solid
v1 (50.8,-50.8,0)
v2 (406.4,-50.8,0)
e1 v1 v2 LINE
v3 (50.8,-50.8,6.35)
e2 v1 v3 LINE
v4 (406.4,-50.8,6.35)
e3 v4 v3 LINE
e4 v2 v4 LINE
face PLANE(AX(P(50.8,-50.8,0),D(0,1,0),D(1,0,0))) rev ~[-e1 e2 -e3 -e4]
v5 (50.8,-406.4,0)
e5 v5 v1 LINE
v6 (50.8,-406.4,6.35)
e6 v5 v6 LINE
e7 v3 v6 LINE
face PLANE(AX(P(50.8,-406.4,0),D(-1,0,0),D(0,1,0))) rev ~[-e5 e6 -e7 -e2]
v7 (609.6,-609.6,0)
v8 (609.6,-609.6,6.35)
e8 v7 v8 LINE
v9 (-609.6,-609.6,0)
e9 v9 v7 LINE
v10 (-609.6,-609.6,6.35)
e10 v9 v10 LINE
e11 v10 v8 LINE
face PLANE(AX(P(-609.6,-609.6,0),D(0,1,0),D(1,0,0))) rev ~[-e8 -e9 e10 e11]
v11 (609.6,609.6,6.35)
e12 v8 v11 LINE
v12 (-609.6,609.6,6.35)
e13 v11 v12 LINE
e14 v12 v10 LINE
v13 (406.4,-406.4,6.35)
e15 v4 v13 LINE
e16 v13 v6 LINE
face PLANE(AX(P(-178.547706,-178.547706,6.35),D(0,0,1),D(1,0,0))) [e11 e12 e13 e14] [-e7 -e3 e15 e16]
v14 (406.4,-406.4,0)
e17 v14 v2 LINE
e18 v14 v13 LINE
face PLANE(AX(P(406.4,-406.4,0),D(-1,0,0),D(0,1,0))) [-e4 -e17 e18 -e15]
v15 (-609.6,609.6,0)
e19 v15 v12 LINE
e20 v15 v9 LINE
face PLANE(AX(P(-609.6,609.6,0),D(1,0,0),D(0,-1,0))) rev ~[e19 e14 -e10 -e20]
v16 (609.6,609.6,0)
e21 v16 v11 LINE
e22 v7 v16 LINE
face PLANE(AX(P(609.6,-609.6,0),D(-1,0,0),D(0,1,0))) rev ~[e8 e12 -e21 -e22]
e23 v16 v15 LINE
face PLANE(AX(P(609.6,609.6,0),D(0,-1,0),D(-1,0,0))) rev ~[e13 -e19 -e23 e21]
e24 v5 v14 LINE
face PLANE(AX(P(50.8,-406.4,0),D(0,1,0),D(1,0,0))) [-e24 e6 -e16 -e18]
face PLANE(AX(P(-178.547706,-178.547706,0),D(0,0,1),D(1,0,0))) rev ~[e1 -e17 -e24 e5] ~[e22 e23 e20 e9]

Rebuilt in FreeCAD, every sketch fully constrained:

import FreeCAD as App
import Part
import Sketcher
Q = App.Units.Quantity

doc = App.newDocument("Part")
body = doc.addObject("PartDesign::Body", "Body")

# Sketch on XY plane
sketch1 = body.newObject("Sketcher::SketchObject", "Sketch")
sketch1.AttachmentSupport = (doc.getObject("XY_Plane"), [""])
sketch1.MapMode = "FlatFace"
sketch1.addGeometry([
    Part.LineSegment(App.Vector(-610, 610, 0), App.Vector(-610, -610, 0)),
    Part.LineSegment(App.Vector(-610, -610, 0), App.Vector(610, -610, 0)),
    Part.LineSegment(App.Vector(610, -610, 0), App.Vector(610, 610, 0)),
    Part.LineSegment(App.Vector(610, 610, 0), App.Vector(-610, 610, 0)),
], False)
sketch1.addConstraint([
    Sketcher.Constraint("Coincident", 0, 2, 1, 1),
    Sketcher.Constraint("Coincident", 1, 2, 2, 1),
    Sketcher.Constraint("Coincident", 2, 2, 3, 1),
    Sketcher.Constraint("Coincident", 3, 2, 0, 1),
    Sketcher.Constraint("Vertical", 0),
    Sketcher.Constraint("Horizontal", 1),
    Sketcher.Constraint("Vertical", 2),
    Sketcher.Constraint("Horizontal", 3),
    Sketcher.Constraint("Symmetric", 0, 2, 2, 2, -1, 1),
    Sketcher.Constraint("Equal", 3, 0),
    Sketcher.Constraint("DistanceX", 1, 1, 1, 2, Q("48 in")),
])
pad1 = body.newObject("PartDesign::Pad", "Pad")
pad1.Profile = sketch1
pad1.Length = Q("0.25 in")

# Sketch on XY plane
sketch2 = body.newObject("Sketcher::SketchObject", "Sketch001")
sketch2.AttachmentSupport = (doc.getObject("XY_Plane"), [""])
sketch2.MapMode = "FlatFace"
sketch2.addGeometry([
    Part.LineSegment(App.Vector(51, -51, 0), App.Vector(51, -406, 0)),
    Part.LineSegment(App.Vector(51, -406, 0), App.Vector(406, -406, 0)),
    Part.LineSegment(App.Vector(406, -406, 0), App.Vector(406, -51, 0)),
    Part.LineSegment(App.Vector(406, -51, 0), App.Vector(51, -51, 0)),
], False)
sketch2.addConstraint([
    Sketcher.Constraint("Coincident", 0, 2, 1, 1),
    Sketcher.Constraint("Coincident", 1, 2, 2, 1),
    Sketcher.Constraint("Coincident", 2, 2, 3, 1),
    Sketcher.Constraint("Coincident", 3, 2, 0, 1),
    Sketcher.Constraint("Vertical", 0),
    Sketcher.Constraint("Horizontal", 1),
    Sketcher.Constraint("Vertical", 2),
    Sketcher.Constraint("Horizontal", 3),
    Sketcher.Constraint("Equal", 3, 0),
    Sketcher.Constraint("DistanceX", 1, 1, 1, 2, Q("14 in")),
    Sketcher.Constraint("DistanceX", -1, 1, 0, 2, Q("2 in")),
    Sketcher.Constraint("DistanceY", 0, 2, -1, 1, Q("16 in")),
])
pocket1 = body.newObject("PartDesign::Pocket", "Pocket")
pocket1.Profile = sketch2
pocket1.Length = Q("1 in")
pocket1.Reversed = True

doc.recompute()
